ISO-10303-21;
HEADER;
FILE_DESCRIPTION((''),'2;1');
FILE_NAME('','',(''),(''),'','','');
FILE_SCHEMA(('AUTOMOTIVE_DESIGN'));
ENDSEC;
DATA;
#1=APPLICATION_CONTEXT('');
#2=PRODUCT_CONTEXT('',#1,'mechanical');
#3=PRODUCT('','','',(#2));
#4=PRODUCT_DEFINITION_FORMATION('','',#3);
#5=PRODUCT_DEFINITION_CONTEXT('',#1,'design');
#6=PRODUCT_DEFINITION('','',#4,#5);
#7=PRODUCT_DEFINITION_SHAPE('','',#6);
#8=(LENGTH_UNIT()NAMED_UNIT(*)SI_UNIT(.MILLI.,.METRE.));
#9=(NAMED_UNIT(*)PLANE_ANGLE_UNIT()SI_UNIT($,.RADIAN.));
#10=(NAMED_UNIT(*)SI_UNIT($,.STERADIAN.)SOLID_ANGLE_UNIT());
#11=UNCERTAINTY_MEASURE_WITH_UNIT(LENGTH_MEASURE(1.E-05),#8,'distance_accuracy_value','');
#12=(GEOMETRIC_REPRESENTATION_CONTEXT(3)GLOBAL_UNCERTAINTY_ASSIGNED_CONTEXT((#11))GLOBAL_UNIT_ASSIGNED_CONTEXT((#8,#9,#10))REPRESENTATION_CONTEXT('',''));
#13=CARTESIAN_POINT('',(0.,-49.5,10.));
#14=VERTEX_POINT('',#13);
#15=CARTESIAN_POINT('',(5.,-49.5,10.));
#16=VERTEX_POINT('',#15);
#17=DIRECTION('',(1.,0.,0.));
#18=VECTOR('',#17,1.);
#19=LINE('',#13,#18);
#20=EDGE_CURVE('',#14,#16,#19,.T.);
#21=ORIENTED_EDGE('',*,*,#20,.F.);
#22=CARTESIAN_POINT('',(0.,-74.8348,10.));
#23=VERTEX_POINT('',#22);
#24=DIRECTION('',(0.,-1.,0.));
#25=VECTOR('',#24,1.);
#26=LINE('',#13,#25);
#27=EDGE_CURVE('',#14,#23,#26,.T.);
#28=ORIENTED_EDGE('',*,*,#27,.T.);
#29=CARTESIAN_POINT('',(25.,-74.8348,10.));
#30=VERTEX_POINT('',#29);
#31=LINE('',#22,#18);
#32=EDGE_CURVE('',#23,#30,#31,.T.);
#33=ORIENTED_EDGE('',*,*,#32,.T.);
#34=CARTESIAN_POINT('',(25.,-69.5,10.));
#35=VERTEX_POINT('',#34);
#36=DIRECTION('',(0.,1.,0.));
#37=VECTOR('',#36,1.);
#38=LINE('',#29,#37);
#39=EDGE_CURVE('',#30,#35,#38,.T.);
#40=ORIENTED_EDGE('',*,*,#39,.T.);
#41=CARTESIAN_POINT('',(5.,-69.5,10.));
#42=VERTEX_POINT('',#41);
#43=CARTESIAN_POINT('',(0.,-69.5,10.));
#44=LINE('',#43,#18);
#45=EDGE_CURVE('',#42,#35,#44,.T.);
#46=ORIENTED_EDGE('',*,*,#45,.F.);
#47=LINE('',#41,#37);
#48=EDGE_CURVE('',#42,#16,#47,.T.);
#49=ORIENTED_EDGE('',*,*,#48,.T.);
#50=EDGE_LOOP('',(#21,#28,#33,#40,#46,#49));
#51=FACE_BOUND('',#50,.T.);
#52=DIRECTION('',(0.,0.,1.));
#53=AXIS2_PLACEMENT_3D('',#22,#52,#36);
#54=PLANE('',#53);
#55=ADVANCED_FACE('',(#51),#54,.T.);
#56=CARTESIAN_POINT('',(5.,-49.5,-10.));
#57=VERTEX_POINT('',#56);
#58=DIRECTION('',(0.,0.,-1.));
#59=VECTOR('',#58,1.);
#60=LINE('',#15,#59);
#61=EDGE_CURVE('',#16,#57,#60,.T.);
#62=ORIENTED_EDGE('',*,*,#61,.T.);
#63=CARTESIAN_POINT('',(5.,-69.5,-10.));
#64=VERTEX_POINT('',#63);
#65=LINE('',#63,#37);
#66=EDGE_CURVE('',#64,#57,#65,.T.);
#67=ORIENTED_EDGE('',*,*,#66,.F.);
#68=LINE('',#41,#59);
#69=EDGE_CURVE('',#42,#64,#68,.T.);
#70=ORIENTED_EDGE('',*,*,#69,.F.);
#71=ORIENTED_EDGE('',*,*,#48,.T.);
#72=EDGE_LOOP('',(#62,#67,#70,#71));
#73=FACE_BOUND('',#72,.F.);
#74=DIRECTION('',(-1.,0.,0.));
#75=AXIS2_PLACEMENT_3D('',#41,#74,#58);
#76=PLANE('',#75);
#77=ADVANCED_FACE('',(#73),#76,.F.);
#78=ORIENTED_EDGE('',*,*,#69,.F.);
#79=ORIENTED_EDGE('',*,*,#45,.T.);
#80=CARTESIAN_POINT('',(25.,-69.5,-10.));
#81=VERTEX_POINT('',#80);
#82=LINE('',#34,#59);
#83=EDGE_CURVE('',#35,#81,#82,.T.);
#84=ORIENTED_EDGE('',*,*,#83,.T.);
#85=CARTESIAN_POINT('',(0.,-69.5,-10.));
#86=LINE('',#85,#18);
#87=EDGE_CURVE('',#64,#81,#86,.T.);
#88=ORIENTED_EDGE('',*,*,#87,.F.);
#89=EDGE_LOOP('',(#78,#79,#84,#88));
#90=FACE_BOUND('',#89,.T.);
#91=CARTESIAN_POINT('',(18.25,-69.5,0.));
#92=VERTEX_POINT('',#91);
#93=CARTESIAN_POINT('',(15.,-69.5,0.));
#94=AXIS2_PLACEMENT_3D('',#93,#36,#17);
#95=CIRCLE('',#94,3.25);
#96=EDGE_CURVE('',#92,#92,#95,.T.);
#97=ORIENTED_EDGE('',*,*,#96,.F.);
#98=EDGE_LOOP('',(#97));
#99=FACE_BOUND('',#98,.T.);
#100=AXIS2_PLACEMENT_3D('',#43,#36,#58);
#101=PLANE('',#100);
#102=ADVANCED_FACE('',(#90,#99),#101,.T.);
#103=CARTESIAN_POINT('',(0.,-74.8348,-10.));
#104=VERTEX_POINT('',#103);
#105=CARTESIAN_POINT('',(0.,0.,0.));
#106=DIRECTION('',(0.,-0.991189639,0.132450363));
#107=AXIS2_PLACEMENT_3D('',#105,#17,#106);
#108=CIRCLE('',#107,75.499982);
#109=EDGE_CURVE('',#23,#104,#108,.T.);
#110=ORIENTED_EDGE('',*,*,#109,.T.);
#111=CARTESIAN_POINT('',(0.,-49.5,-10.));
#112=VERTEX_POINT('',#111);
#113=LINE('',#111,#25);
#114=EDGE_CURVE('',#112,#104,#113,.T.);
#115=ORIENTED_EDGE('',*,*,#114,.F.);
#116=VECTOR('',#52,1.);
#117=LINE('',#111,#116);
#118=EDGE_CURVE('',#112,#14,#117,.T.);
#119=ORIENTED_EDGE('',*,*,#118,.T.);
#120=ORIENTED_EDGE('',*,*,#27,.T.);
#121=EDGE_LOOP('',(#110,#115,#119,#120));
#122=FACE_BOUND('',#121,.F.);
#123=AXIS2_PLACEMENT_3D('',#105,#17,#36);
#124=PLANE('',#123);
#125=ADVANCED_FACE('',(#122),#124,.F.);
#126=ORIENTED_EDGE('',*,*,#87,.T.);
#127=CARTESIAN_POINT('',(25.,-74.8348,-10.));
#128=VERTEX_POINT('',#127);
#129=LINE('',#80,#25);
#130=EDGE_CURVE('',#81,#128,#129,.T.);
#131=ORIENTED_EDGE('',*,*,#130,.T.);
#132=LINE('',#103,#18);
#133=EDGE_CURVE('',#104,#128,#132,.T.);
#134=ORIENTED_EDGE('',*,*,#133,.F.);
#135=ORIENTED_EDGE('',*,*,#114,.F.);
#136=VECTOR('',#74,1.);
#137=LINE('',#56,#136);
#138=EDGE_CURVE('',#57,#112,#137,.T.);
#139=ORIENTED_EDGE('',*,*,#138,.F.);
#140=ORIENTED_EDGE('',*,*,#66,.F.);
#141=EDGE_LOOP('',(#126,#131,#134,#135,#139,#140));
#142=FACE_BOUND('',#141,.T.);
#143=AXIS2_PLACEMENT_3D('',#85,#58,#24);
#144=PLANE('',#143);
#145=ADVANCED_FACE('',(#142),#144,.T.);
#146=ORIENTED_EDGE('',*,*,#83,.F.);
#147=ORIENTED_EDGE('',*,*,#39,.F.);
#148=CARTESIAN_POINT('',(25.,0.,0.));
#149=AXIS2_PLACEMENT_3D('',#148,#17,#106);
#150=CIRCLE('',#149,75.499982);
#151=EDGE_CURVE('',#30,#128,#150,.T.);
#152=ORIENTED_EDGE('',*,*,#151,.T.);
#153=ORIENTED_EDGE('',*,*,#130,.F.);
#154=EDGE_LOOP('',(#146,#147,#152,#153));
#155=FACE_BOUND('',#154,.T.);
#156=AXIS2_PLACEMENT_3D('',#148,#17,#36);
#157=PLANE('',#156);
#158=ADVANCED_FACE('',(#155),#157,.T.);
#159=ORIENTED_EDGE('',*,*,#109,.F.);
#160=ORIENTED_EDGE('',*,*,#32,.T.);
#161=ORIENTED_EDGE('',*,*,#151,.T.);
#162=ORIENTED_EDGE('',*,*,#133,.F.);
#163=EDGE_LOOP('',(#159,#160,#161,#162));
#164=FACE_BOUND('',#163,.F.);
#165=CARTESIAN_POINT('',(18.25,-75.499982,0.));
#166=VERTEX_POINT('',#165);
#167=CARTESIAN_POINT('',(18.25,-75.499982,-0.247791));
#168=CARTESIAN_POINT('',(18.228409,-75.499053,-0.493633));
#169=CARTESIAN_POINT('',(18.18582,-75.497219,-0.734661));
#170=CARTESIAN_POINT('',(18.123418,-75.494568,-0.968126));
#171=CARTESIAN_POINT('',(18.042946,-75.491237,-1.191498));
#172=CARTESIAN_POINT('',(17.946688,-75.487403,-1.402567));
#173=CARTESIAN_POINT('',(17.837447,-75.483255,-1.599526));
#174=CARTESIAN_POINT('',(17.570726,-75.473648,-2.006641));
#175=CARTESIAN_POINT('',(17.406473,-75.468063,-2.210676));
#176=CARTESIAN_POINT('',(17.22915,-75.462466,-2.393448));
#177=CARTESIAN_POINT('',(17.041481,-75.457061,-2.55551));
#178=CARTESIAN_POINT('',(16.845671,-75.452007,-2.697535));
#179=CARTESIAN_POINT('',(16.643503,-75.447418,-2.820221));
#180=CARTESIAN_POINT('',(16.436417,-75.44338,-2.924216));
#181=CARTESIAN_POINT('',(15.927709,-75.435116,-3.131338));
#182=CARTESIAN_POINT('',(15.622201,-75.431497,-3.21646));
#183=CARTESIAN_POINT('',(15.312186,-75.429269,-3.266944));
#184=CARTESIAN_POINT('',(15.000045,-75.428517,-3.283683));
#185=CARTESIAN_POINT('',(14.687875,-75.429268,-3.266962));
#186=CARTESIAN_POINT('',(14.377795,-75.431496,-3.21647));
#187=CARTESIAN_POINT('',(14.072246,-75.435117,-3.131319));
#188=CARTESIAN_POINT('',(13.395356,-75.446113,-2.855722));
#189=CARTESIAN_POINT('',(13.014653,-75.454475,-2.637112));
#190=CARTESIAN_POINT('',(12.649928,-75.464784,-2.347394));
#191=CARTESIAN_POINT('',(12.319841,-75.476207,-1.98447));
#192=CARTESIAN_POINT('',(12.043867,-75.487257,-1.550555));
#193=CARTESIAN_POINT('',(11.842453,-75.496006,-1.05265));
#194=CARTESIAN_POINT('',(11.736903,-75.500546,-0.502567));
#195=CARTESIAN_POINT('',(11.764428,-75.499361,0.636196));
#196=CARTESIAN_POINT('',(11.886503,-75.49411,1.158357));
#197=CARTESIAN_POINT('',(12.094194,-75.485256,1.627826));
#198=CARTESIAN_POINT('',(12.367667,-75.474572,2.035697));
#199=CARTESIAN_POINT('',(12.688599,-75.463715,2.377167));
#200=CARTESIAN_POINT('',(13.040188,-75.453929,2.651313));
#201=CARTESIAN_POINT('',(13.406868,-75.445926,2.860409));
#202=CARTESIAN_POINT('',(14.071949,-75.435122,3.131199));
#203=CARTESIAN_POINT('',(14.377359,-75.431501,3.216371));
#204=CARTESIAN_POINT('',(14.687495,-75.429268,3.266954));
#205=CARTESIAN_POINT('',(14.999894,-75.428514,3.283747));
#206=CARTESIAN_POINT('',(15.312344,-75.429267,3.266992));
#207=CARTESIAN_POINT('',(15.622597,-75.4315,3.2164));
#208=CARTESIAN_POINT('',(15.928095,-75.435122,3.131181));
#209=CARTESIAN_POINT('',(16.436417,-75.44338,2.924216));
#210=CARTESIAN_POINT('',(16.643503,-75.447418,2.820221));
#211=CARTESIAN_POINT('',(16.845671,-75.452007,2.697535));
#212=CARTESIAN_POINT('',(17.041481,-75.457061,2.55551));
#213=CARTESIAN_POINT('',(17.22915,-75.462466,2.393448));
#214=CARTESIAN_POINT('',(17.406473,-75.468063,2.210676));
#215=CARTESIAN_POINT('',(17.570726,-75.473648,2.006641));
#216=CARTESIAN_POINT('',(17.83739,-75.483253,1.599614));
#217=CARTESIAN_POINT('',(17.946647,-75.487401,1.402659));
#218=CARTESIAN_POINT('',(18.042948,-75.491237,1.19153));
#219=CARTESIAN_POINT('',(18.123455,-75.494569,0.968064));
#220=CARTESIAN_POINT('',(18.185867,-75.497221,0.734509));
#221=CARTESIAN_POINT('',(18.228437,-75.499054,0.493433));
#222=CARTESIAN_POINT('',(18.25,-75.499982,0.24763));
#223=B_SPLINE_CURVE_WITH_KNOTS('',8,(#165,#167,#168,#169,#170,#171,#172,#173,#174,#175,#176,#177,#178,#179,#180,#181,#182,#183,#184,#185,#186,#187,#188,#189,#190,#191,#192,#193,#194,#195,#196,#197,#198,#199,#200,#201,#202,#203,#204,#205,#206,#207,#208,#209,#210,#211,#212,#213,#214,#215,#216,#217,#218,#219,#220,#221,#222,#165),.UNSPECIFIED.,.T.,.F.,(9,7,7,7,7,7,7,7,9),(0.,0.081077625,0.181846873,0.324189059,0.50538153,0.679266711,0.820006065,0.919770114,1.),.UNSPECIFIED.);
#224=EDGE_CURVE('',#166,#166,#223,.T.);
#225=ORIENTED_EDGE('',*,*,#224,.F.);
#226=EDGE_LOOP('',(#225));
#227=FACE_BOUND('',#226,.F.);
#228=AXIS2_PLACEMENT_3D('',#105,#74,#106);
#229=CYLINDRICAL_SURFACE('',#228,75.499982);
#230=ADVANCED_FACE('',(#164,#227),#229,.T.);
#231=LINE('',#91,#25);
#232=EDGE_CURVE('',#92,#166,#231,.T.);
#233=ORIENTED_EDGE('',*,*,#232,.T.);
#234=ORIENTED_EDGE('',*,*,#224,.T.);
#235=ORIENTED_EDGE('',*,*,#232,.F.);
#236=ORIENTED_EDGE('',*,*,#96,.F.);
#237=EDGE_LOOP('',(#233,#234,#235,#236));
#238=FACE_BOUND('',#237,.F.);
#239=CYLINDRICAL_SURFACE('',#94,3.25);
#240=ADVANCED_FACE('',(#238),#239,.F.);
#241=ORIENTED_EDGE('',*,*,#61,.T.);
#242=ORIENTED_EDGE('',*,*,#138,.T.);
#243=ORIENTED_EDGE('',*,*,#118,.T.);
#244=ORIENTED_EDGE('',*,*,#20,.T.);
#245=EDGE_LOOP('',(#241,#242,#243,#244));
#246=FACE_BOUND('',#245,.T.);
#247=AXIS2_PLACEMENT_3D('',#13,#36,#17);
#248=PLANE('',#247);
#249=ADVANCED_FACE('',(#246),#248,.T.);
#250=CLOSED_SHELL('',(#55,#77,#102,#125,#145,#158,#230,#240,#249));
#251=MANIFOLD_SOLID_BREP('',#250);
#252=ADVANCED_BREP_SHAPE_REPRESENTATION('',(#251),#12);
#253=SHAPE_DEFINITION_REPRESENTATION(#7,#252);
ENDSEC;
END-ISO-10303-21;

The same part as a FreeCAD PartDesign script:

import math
import FreeCAD as App
import Part
import Sketcher
from FreeCAD import Vector


def add_polygon(sketch, points):
    """Adds a closed chain of lines whose ends are joined by coincident constraints."""
    first, n = sketch.GeometryCount, len(points)
    for a, b in zip(points, points[1:] + points[:1]):
        sketch.addGeometry(Part.LineSegment(App.Vector(*a, 0), App.Vector(*b, 0)), False)
    for i in range(n):
        sketch.addConstraint(Sketcher.Constraint("Coincident", first + i, 2, first + (i + 1) % n, 1))

doc = App.newDocument("Part")
params = doc.addObject("Spreadsheet::Sheet", "Params")
for row, (alias, value) in enumerate([
    ("sketch1_radius", "75.5 mm"),
    ("sketch1_height", "20 mm"),
    ("pad1_length", "25 mm"),
    ("sketch2_width", "5 mm"),
    ("sketch2_height", "20 mm"),
    ("pad2_length", "20 mm"),
    ("sketch3_diameter", "6.5 mm"),
    ("pocket1_length", "10 mm"),
], start=1):
    params.set(f"A{row}", alias)
    params.set(f"B{row}", "=" + value)
    params.setAlias(f"B{row}", alias)

body = doc.addObject("PartDesign::Body", "Body")

sketch1 = body.newObject("Sketcher::SketchObject", "Sketch")
sketch1.AttachmentSupport = (doc.getObject("YZ_Plane"), [""])
sketch1.MapMode = "FlatFace"
sketch1.addGeometry(Part.LineSegment(Vector(-70, 10, 0), Vector(-75, 10, 0)), False)
sketch1.addGeometry(Part.ArcOfCircle(Part.Circle(Vector(0, 0, 0), Vector(0, 0, 1), 75), math.radians(172.39), math.radians(187.61)), False)
sketch1.addGeometry(Part.LineSegment(Vector(-75, -10, 0), Vector(-70, -10, 0)), False)
sketch1.addGeometry(Part.LineSegment(Vector(-70, -10, 0), Vector(-70, 10, 0)), False)
sketch1.addConstraint(Sketcher.Constraint("Coincident", 0, 2, 1, 1))
sketch1.addConstraint(Sketcher.Constraint("Coincident", 1, 2, 2, 1))
sketch1.addConstraint(Sketcher.Constraint("Coincident", 2, 2, 3, 1))
sketch1.addConstraint(Sketcher.Constraint("Coincident", 3, 2, 0, 1))
sketch1.addConstraint(Sketcher.Constraint("Horizontal", 0))
sketch1.addConstraint(Sketcher.Constraint("Horizontal", 2))
sketch1.addConstraint(Sketcher.Constraint("Vertical", 3))
sketch1.addConstraint(Sketcher.Constraint("Coincident", 1, 3, -1, 1))
sketch1.addConstraint(Sketcher.Constraint("Vertical", 0, 2, 1, 2))
sketch1.addConstraint(Sketcher.Constraint("Radius", 1, 75.5))
sketch1.addConstraint(Sketcher.Constraint("DistanceY", 3, 1, 3, 2, 20.0))
sketch1.addConstraint(Sketcher.Constraint("DistanceX", 2, 2, -1, 1, 69.5))
sketch1.setExpression("Constraints[9]", "Params.sketch1_radius")
sketch1.setExpression("Constraints[10]", "Params.sketch1_height")
pad1 = body.newObject("PartDesign::Pad", "Pad")
pad1.Profile = sketch1
pad1.setExpression("Length", "Params.pad1_length")

sketch2 = body.newObject("Sketcher::SketchObject", "Sketch001")
sketch2.AttachmentSupport = (doc.getObject("XZ_Plane"), [""])
sketch2.MapMode = "FlatFace"
sketch2.AttachmentOffset = App.Placement(Vector(0, 0, 69.5), App.Rotation())
add_polygon(sketch2, [(0, -10), (0, 10), (5, 10), (5, -10)])
sketch2.addConstraint(Sketcher.Constraint("Vertical", 0))
sketch2.addConstraint(Sketcher.Constraint("Horizontal", 1))
sketch2.addConstraint(Sketcher.Constraint("Vertical", 2))
sketch2.addConstraint(Sketcher.Constraint("Horizontal", 3))
sketch2.addConstraint(Sketcher.Constraint("Symmetric", 0, 2, 3, 2, -1, 1))
sketch2.addConstraint(Sketcher.Constraint("DistanceX", 1, 1, 1, 2, 5.0))
sketch2.addConstraint(Sketcher.Constraint("DistanceY", 0, 1, 0, 2, 20.0))
sketch2.setExpression("Constraints[9]", "Params.sketch2_width")
sketch2.setExpression("Constraints[10]", "Params.sketch2_height")
pad2 = body.newObject("PartDesign::Pad", "Pad001")
pad2.Profile = sketch2
pad2.setExpression("Length", "Params.pad2_length")
pad2.Reversed = True

sketch3 = body.newObject("Sketcher::SketchObject", "Sketch002")
sketch3.AttachmentSupport = (doc.getObject("XZ_Plane"), [""])
sketch3.MapMode = "FlatFace"
sketch3.AttachmentOffset = App.Placement(Vector(0, 0, 69.5), App.Rotation())
sketch3.addGeometry(Part.Circle(Vector(15, 0, 0), Vector(0, 0, 1), 3.2), False)
sketch3.addConstraint(Sketcher.Constraint("PointOnObject", 0, 3, -1))
sketch3.addConstraint(Sketcher.Constraint("Diameter", 0, 6.5))
sketch3.addConstraint(Sketcher.Constraint("DistanceX", -1, 1, 0, 3, 15.0))
sketch3.setExpression("Constraints[1]", "Params.sketch3_diameter")
pocket1 = body.newObject("PartDesign::Pocket", "Pocket")
pocket1.Profile = sketch3
pocket1.setExpression("Length", "Params.pocket1_length")
pocket1.Reversed = True

doc.recompute()
